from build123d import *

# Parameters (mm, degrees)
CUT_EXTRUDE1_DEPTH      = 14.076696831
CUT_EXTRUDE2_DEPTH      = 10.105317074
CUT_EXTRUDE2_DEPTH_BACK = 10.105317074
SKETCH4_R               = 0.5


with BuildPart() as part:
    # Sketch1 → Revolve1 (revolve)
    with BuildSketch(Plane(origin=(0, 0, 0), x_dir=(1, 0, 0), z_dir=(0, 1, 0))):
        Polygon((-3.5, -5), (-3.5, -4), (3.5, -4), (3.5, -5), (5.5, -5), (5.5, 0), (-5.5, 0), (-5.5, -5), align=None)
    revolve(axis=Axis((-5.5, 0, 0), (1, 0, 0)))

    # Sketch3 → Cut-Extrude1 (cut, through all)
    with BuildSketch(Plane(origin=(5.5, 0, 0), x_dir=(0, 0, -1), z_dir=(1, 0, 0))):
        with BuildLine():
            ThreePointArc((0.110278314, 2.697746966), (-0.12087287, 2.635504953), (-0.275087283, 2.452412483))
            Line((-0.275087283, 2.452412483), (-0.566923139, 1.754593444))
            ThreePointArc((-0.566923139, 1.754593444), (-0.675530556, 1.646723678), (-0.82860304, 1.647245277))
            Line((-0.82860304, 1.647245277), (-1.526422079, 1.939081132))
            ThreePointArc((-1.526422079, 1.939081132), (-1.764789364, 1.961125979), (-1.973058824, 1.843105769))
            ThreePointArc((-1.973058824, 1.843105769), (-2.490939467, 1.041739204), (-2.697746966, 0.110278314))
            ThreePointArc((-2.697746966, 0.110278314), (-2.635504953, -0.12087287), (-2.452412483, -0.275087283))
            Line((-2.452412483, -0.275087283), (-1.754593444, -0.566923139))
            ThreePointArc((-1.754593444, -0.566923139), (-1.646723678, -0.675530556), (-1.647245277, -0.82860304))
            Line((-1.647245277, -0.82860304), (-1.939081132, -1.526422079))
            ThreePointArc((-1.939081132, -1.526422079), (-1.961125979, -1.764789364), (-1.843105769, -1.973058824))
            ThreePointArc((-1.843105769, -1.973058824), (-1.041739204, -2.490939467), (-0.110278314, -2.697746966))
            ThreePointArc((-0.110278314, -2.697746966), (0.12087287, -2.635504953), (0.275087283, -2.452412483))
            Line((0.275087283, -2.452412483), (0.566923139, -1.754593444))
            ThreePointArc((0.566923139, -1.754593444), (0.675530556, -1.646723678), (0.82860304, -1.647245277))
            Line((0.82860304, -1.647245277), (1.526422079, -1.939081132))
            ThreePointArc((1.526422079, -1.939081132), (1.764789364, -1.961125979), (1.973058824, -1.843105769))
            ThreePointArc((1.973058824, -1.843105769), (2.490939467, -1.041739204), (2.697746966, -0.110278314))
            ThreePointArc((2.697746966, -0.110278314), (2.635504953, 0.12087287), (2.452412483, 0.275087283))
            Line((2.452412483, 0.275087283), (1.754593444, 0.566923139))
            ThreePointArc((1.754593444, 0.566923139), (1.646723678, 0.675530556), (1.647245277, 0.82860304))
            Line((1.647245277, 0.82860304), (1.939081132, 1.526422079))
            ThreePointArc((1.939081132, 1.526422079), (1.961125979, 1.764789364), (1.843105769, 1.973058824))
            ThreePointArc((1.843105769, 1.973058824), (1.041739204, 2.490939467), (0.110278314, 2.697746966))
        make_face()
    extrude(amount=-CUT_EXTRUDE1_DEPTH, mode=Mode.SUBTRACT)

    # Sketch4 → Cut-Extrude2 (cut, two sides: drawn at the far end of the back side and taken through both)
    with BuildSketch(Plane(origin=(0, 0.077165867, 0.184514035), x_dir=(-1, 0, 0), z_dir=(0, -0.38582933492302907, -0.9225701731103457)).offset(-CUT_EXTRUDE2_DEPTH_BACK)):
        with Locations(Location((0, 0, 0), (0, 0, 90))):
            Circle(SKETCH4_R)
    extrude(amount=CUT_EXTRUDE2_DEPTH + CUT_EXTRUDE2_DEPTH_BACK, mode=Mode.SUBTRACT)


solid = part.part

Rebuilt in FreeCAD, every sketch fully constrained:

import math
import FreeCAD as App
import Part
import Sketcher
from FreeCAD import Vector

doc = App.newDocument("Part")
body = doc.addObject("PartDesign::Body", "Body")

# Sketch on XZ plane
sketch1 = body.newObject("Sketcher::SketchObject", "Sketch")
sketch1.AttachmentSupport = (doc.getObject("XZ_Plane"), [""])
sketch1.MapMode = "FlatFace"
sketch1.addGeometry([
    Part.LineSegment(Vector(-3.5, 5, 0), Vector(-3.5, 4, 0)),  # 0
    Part.LineSegment(Vector(-3.5, 4, 0), Vector(3.5, 4, 0)),  # 1
    Part.LineSegment(Vector(3.5, 4, 0), Vector(3.5, 5, 0)),  # 2
    Part.LineSegment(Vector(3.5, 5, 0), Vector(5.5, 5, 0)),  # 3
    Part.LineSegment(Vector(5.5, 5, 0), Vector(5.5, 0, 0)),  # 4
    Part.LineSegment(Vector(5.5, 0, 0), Vector(-5.5, 0, 0)),  # 5
    Part.LineSegment(Vector(-5.5, 0, 0), Vector(-5.5, 5, 0)),  # 6
    Part.LineSegment(Vector(-5.5, 5, 0), Vector(-3.5, 5, 0)),  # 7
], False)
sketch1.addConstraint([
    Sketcher.Constraint("Coincident", 0, 2, 1, 1),
    Sketcher.Constraint("Coincident", 1, 2, 2, 1),
    Sketcher.Constraint("Coincident", 2, 2, 3, 1),
    Sketcher.Constraint("Coincident", 3, 2, 4, 1),
    Sketcher.Constraint("Coincident", 4, 2, 5, 1),
    Sketcher.Constraint("Coincident", 5, 2, 6, 1),
    Sketcher.Constraint("Coincident", 6, 2, 7, 1),
    Sketcher.Constraint("Coincident", 7, 2, 0, 1),
    Sketcher.Constraint("Vertical", 0),
    Sketcher.Constraint("Horizontal", 1),
    Sketcher.Constraint("Vertical", 2),
    Sketcher.Constraint("Horizontal", 3),
    Sketcher.Constraint("Vertical", 4),
    Sketcher.Constraint("Horizontal", 5),
    Sketcher.Constraint("Vertical", 6),
    Sketcher.Constraint("Horizontal", 7),
    Sketcher.Constraint("Symmetric", 4, 2, 5, 2, -1, 1),
    Sketcher.Constraint("Symmetric", 2, 2, 7, 2, -2),
    Sketcher.Constraint("DistanceX", 1, 1, 1, 2, 7.0),
    Sketcher.Constraint("DistanceX", 3, 1, 3, 2, 2.0),
    Sketcher.Constraint("DistanceY", 0, 2, 0, 1, 1.0),
    Sketcher.Constraint("DistanceY", 4, 2, 4, 1, 5.0),
])
revolution = body.newObject("PartDesign::Revolution", "Revolution")
revolution.Profile = sketch1
revolution.ReferenceAxis = (sketch1, ["H_Axis"])
revolution.Angle = 360

# Sketch on YZ plane
sketch2 = body.newObject("Sketcher::SketchObject", "Sketch001")
sketch2.AttachmentSupport = (doc.getObject("YZ_Plane"), [""])
sketch2.MapMode = "FlatFace"
sketch2.AttachmentOffset = App.Placement(Vector(0, 0, 5.5), App.Rotation())
sketch2.addGeometry([
    Part.ArcOfCircle(Part.Circle(Vector(2.3, -0.09, 0), Vector(0, 0, 1), 0.4), math.radians(-2), math.radians(67)),  # 0
    Part.LineSegment(Vector(2.45, 0.28, 0), Vector(1.75, 0.57, 0)),  # 1
    Part.ArcOfCircle(Part.Circle(Vector(1.83, 0.75, 0), Vector(0, 0, 1), 0.2), math.radians(157), math.radians(247)),  # 2
    Part.LineSegment(Vector(1.65, 0.83, 0), Vector(1.94, 1.53, 0)),  # 3
    Part.ArcOfCircle(Part.Circle(Vector(1.57, 1.68, 0), Vector(0, 0, 1), 0.4), math.radians(-23), math.radians(47)),  # 4
    Part.ArcOfCircle(Part.Circle(Vector(0, 0, 0), Vector(0, 0, 1), 2.7), math.radians(47), math.radians(88)),  # 5
    Part.ArcOfCircle(Part.Circle(Vector(0.09, 2.3, 0), Vector(0, 0, 1), 0.4), math.radians(88), math.radians(157)),  # 6
    Part.LineSegment(Vector(-0.28, 2.45, 0), Vector(-0.57, 1.75, 0)),  # 7
    Part.ArcOfCircle(Part.Circle(Vector(-0.75, 1.83, 0), Vector(0, 0, 1), 0.2), math.radians(-113), math.radians(-23)),  # 8
    Part.LineSegment(Vector(-0.83, 1.65, 0), Vector(-1.53, 1.94, 0)),  # 9
    Part.ArcOfCircle(Part.Circle(Vector(-1.68, 1.57, 0), Vector(0, 0, 1), 0.4), math.radians(67), math.radians(137)),  # 10
    Part.ArcOfCircle(Part.Circle(Vector(0, 0, 0), Vector(0, 0, 1), 2.7), math.radians(137), math.radians(178)),  # 11
    Part.ArcOfCircle(Part.Circle(Vector(-2.3, 0.09, 0), Vector(0, 0, 1), 0.4), math.radians(178), math.radians(247)),  # 12
    Part.LineSegment(Vector(-2.45, -0.28, 0), Vector(-1.75, -0.57, 0)),  # 13
    Part.ArcOfCircle(Part.Circle(Vector(-1.83, -0.75, 0), Vector(0, 0, 1), 0.2), math.radians(-23), math.radians(67)),  # 14
    Part.LineSegment(Vector(-1.65, -0.83, 0), Vector(-1.94, -1.53, 0)),  # 15
    Part.ArcOfCircle(Part.Circle(Vector(-1.57, -1.68, 0), Vector(0, 0, 1), 0.4), math.radians(157), math.radians(227)),  # 16
    Part.ArcOfCircle(Part.Circle(Vector(0, 0, 0), Vector(0, 0, 1), 2.7), math.radians(-133), math.radians(-92)),  # 17
    Part.ArcOfCircle(Part.Circle(Vector(-0.09, -2.3, 0), Vector(0, 0, 1), 0.4), math.radians(-92), math.radians(-23)),  # 18
    Part.LineSegment(Vector(0.28, -2.45, 0), Vector(0.57, -1.75, 0)),  # 19
    Part.ArcOfCircle(Part.Circle(Vector(0.75, -1.83, 0), Vector(0, 0, 1), 0.2), math.radians(67), math.radians(157)),  # 20
    Part.LineSegment(Vector(0.83, -1.65, 0), Vector(1.53, -1.94, 0)),  # 21
    Part.ArcOfCircle(Part.Circle(Vector(1.68, -1.57, 0), Vector(0, 0, 1), 0.4), math.radians(-113), math.radians(-43)),  # 22
    Part.ArcOfCircle(Part.Circle(Vector(0, 0, 0), Vector(0, 0, 1), 2.7), math.radians(-43), math.radians(-2)),  # 23
], False)
sketch2.addConstraint([
    Sketcher.Constraint("Tangent", 0, 2, 1, 1),
    Sketcher.Constraint("Tangent", 1, 2, 2, 2),
    Sketcher.Constraint("Tangent", 2, 1, 3, 1),
    Sketcher.Constraint("Tangent", 3, 2, 4, 1),
    Sketcher.Constraint("Tangent", 4, 2, 5, 1),
    Sketcher.Constraint("Tangent", 5, 2, 6, 1),
    Sketcher.Constraint("Tangent", 6, 2, 7, 1),
    Sketcher.Constraint("Tangent", 7, 2, 8, 2),
    Sketcher.Constraint("Tangent", 8, 1, 9, 1),
    Sketcher.Constraint("Tangent", 9, 2, 10, 1),
    Sketcher.Constraint("Tangent", 10, 2, 11, 1),
    Sketcher.Constraint("Tangent", 11, 2, 12, 1),
    Sketcher.Constraint("Tangent", 12, 2, 13, 1),
    Sketcher.Constraint("Tangent", 13, 2, 14, 2),
    Sketcher.Constraint("Tangent", 14, 1, 15, 1),
    Sketcher.Constraint("Tangent", 15, 2, 16, 1),
    Sketcher.Constraint("Tangent", 16, 2, 17, 1),
    Sketcher.Constraint("Tangent", 17, 2, 18, 1),
    Sketcher.Constraint("Tangent", 18, 2, 19, 1),
    Sketcher.Constraint("Tangent", 19, 2, 20, 2),
    Sketcher.Constraint("Tangent", 20, 1, 21, 1),
    Sketcher.Constraint("Tangent", 21, 2, 22, 1),
    Sketcher.Constraint("Tangent", 22, 2, 23, 1),
    Sketcher.Constraint("Tangent", 23, 2, 0, 1),
    Sketcher.Constraint("Coincident", 5, 3, -1, 1),
    Sketcher.Constraint("Coincident", 11, 3, -1, 1),
    Sketcher.Constraint("Coincident", 17, 3, -1, 1),
    Sketcher.Constraint("Coincident", 23, 3, -1, 1),
    Sketcher.Constraint("Equal", 0, 4),
    Sketcher.Constraint("Equal", 4, 6),
    Sketcher.Constraint("Equal", 2, 8),
    Sketcher.Constraint("Equal", 6, 10),
    Sketcher.Constraint("Equal", 5, 11),
    Sketcher.Constraint("Equal", 10, 12),
    Sketcher.Constraint("Equal", 8, 14),
    Sketcher.Constraint("Equal", 12, 16),
    Sketcher.Constraint("Equal", 11, 17),
    Sketcher.Constraint("Equal", 16, 18),
    Sketcher.Constraint("Equal", 14, 20),
    Sketcher.Constraint("Equal", 18, 22),
    Sketcher.Constraint("Equal", 17, 23),
    Sketcher.Constraint("Symmetric", 2, 3, 14, 3, -1, 1),
    Sketcher.Constraint("Symmetric", 8, 3, 20, 3, -1, 1),
    Sketcher.Constraint("Perpendicular", 1, 3),
    Sketcher.Constraint("Parallel", 3, 7),
    Sketcher.Constraint("Perpendicular", 7, 9),
    Sketcher.Constraint("Parallel", 9, 13),
    Sketcher.Constraint("Perpendicular", 13, 15),
    Sketcher.Constraint("Parallel", 15, 19),
    Sketcher.Constraint("Perpendicular", 19, 21),
    Sketcher.Constraint("Equal", 1, 3),
    Sketcher.Constraint("Equal", 3, 7),
    Sketcher.Constraint("Equal", 7, 9),
    Sketcher.Constraint("Radius", 0, 0.4),
    Sketcher.Constraint("Radius", 2, 0.2),
    Sketcher.Constraint("Radius", 5, 2.7),
    Sketcher.Constraint("DistanceY", 0, 3, 8, 3, 1.9257),
    Sketcher.Constraint("DistanceY", 10, 3, 4, 3, 0.110701),
])
pocket1 = body.newObject("PartDesign::Pocket", "Pocket")
pocket1.Profile = sketch2
pocket1.Type = "ThroughAll"

# Sketch on an angled plane
sketch3 = body.newObject("Sketcher::SketchObject", "Sketch002")
sketch3.Placement = App.Placement(Vector(0, 0.077166, 0.184514), App.Rotation(Vector(-1, 0, 0), Vector(0, 0.922570173, -0.385829335), Vector(0, -0.385829335, -0.922570173), "ZXY"))
sketch3.addGeometry(Part.Circle(Vector(0, 0, 0), Vector(0, 0, 1), 0.5), False)
sketch3.addConstraint([
    Sketcher.Constraint("Coincident", 0, 3, -1, 1),
    Sketcher.Constraint("Diameter", 0, 1.0),
])
pocket2 = body.newObject("PartDesign::Pocket", "Pocket001")
pocket2.Profile = sketch3
pocket2.Type = "ThroughAll"
pocket2.Midplane = True

doc.recompute()
